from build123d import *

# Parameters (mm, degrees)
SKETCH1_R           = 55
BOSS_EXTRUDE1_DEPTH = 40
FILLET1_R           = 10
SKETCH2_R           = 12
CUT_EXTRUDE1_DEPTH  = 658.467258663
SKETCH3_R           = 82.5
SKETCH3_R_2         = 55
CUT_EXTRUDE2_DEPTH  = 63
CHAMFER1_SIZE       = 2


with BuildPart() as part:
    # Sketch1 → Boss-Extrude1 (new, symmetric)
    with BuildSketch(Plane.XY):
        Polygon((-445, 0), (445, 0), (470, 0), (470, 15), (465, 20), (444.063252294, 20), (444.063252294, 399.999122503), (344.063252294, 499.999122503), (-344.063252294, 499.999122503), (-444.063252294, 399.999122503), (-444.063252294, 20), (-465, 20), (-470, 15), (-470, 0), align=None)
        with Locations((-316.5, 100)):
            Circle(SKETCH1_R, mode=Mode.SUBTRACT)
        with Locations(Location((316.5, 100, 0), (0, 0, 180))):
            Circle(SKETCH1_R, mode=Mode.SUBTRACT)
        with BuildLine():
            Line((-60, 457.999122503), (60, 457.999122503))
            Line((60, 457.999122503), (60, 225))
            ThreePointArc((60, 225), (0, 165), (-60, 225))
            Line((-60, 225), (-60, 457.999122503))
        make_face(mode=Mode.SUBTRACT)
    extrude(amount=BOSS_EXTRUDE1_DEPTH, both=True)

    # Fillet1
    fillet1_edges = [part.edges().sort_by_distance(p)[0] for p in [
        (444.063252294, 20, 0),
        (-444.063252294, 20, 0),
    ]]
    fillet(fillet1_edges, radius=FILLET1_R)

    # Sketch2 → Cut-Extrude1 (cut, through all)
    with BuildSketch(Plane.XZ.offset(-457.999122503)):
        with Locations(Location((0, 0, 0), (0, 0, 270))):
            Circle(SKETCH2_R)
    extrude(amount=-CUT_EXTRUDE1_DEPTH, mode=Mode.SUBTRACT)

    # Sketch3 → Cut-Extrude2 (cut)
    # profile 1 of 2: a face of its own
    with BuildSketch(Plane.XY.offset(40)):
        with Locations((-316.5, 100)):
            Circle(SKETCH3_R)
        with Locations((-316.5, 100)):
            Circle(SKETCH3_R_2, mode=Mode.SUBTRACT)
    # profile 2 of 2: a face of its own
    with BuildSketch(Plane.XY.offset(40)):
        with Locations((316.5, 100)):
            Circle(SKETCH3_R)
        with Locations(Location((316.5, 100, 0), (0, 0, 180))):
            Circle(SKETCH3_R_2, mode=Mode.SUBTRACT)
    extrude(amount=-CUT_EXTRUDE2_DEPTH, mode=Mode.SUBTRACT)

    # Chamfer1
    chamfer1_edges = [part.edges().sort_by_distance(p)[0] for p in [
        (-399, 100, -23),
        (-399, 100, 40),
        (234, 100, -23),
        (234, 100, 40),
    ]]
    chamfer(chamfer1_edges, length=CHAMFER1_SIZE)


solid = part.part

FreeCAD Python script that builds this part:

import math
import FreeCAD as App
import Part
import Sketcher
from FreeCAD import Vector


def edges_at(feature, points):
    """Names of the edges that pass closest to the given points."""
    edges = feature.Shape.Edges
    near = lambda p: min(range(len(edges)), key=lambda i: edges[i].distToShape(Part.Vertex(*p))[0])
    return sorted({f"Edge{near(p) + 1}" for p in points})


def add_polygon(sketch, points):
    """Adds a closed chain of lines whose ends are joined by coincident constraints."""
    first, n = sketch.GeometryCount, len(points)
    for a, b in zip(points, points[1:] + points[:1]):
        sketch.addGeometry(Part.LineSegment(App.Vector(*a, 0), App.Vector(*b, 0)), False)
    for i in range(n):
        sketch.addConstraint(Sketcher.Constraint("Coincident", first + i, 2, first + (i + 1) % n, 1))

doc = App.newDocument("Part")
body = doc.addObject("PartDesign::Body", "Body")

# Sketch on XY plane
sketch1 = body.newObject("Sketcher::SketchObject", "Sketch")
sketch1.AttachmentSupport = (doc.getObject("XY_Plane"), [""])
sketch1.MapMode = "FlatFace"
add_polygon(sketch1, [(470, 0), (470, 15), (465, 20), (444.063252, 20), (444.063252, 399.999123), (344.063252, 499.999123), (-344.063252, 499.999123), (-444.063252, 399.999123), (-444.063252, 20), (-465, 20), (-470, 15), (-470, 0)])  # lines 0-11
sketch1.addGeometry(Part.Circle(Vector(-316.5, 100, 0), Vector(0, 0, 1), 55), False)  # 12
sketch1.addGeometry(Part.Circle(Vector(316.5, 100, 0), Vector(0, 0, 1), 55), False)  # 13
sketch1.addGeometry(Part.LineSegment(Vector(-60, 225, 0), Vector(-60, 457.999123, 0)), False)  # 14
sketch1.addGeometry(Part.LineSegment(Vector(-60, 457.999123, 0), Vector(60, 457.999123, 0)), False)  # 15
sketch1.addGeometry(Part.LineSegment(Vector(60, 457.999123, 0), Vector(60, 225, 0)), False)  # 16
sketch1.addGeometry(Part.ArcOfCircle(Part.Circle(Vector(0, 225, 0), Vector(0, 0, 1), 60), math.radians(180), math.radians(360)), False)  # 17
sketch1.addConstraint([
    Sketcher.Constraint("Coincident", 14, 2, 15, 1),
    Sketcher.Constraint("Coincident", 15, 2, 16, 1),
    Sketcher.Constraint("Tangent", 16, 2, 17, 2),
    Sketcher.Constraint("Tangent", 17, 1, 14, 1),
    Sketcher.Constraint("Vertical", 0),
    Sketcher.Constraint("Horizontal", 2),
    Sketcher.Constraint("Vertical", 3),
    Sketcher.Constraint("Horizontal", 5),
    Sketcher.Constraint("Vertical", 7),
    Sketcher.Constraint("Horizontal", 8),
    Sketcher.Constraint("Vertical", 10),
    Sketcher.Constraint("Horizontal", 11),
    Sketcher.Constraint("Vertical", 14),
    Sketcher.Constraint("Horizontal", 15),
    Sketcher.Constraint("Vertical", 16),
    Sketcher.Constraint("Equal", 12, 13),
    Sketcher.Constraint("Symmetric", 10, 2, 11, 2, -1, 1),
    Sketcher.Constraint("Symmetric", 12, 3, 13, 3, -2),
    Sketcher.Constraint("Symmetric", 3, 2, 6, 2, -2),
    Sketcher.Constraint("Symmetric", 1, 2, 8, 2, -2),
    Sketcher.Constraint("PointOnObject", 17, 3, -2),
    Sketcher.Constraint("Parallel", 1, 4),
    Sketcher.Constraint("Perpendicular", 4, 6),
    Sketcher.Constraint("Parallel", 6, 9),
    Sketcher.Constraint("Horizontal", 0, 2, 9, 2),
    Sketcher.Constraint("Diameter", 12, 110.0),
    Sketcher.Constraint("Radius", 17, 60.0),
    Sketcher.Constraint("DistanceX", 11, 1, 11, 2, 940.0),
    Sketcher.Constraint("DistanceY", 0, 1, 0, 2, 15.0),
    Sketcher.Constraint("DistanceY", -1, 1, 12, 3, 100.0),
    Sketcher.Constraint("DistanceY", -1, 1, 17, 3, 225.0),
    Sketcher.Constraint("DistanceX", -1, 1, 1, 2, 465.0),
    Sketcher.Constraint("DistanceX", 12, 3, 13, 3, 633.0),
    Sketcher.Constraint("DistanceX", 4, 2, 3, 2, 100.0),
    Sketcher.Constraint("DistanceY", 14, 2, 5, 2, 42.0),
    Sketcher.Constraint("DistanceX", 2, 2, 2, 1, 20.936748),
    Sketcher.Constraint("DistanceY", 3, 1, 3, 2, 379.999123),
])
pad1 = body.newObject("PartDesign::Pad", "Pad")
pad1.Profile = sketch1
pad1.Length = 80
pad1.Midplane = True
doc.recompute()

fillet = body.newObject("PartDesign::Fillet", "Fillet")
fillet.Base = (pad1, edges_at(pad1, [(444.063, 20, 0), (-444.063, 20, 0)]))
fillet.Radius = 10

# Sketch on XZ plane
sketch2 = body.newObject("Sketcher::SketchObject", "Sketch001")
sketch2.AttachmentSupport = (doc.getObject("XZ_Plane"), [""])
sketch2.MapMode = "FlatFace"
sketch2.AttachmentOffset = App.Placement(Vector(0, 0, -457.999123), App.Rotation())
sketch2.addGeometry(Part.Circle(Vector(0, 0, 0), Vector(0, 0, 1), 12), False)
sketch2.addConstraint([
    Sketcher.Constraint("Coincident", 0, 3, -1, 1),
    Sketcher.Constraint("Diameter", 0, 24.0),
])
pocket1 = body.newObject("PartDesign::Pocket", "Pocket")
pocket1.Profile = sketch2
pocket1.Type = "ThroughAll"

# Sketch on XY plane
sketch3 = body.newObject("Sketcher::SketchObject", "Sketch002")
sketch3.AttachmentSupport = (doc.getObject("XY_Plane"), [""])
sketch3.MapMode = "FlatFace"
sketch3.AttachmentOffset = App.Placement(Vector(0, 0, 40), App.Rotation())
sketch3.addGeometry([
    Part.Circle(Vector(-316.5, 100, 0), Vector(0, 0, 1), 82.5),
    Part.Circle(Vector(-316.5, 100, 0), Vector(0, 0, 1), 55),
    Part.Circle(Vector(316.5, 100, 0), Vector(0, 0, 1), 82.5),
    Part.Circle(Vector(316.5, 100, 0), Vector(0, 0, 1), 55),
], False)
sketch3.addConstraint([
    Sketcher.Constraint("Coincident", 1, 3, 0, 3),
    Sketcher.Constraint("Coincident", 3, 3, 2, 3),
    Sketcher.Constraint("Equal", 0, 2),
    Sketcher.Constraint("Equal", 1, 3),
    Sketcher.Constraint("Symmetric", 0, 3, 2, 3, -2),
    Sketcher.Constraint("Diameter", 0, 165.0),
    Sketcher.Constraint("Diameter", 1, 110.0),
    Sketcher.Constraint("DistanceY", -1, 1, 0, 3, 100.0),
    Sketcher.Constraint("DistanceX", 0, 3, 2, 3, 633.0),
])
pocket2 = body.newObject("PartDesign::Pocket", "Pocket001")
pocket2.Profile = sketch3
pocket2.Length = 63
doc.recompute()

chamfer = body.newObject("PartDesign::Chamfer", "Chamfer")
chamfer.Base = (pocket2, edges_at(pocket2, [
    (-399, 100, -23),
    (-399, 100, 40),
    (234, 100, -23),
    (234, 100, 40),
]))
chamfer.Size = 2

doc.recompute()
